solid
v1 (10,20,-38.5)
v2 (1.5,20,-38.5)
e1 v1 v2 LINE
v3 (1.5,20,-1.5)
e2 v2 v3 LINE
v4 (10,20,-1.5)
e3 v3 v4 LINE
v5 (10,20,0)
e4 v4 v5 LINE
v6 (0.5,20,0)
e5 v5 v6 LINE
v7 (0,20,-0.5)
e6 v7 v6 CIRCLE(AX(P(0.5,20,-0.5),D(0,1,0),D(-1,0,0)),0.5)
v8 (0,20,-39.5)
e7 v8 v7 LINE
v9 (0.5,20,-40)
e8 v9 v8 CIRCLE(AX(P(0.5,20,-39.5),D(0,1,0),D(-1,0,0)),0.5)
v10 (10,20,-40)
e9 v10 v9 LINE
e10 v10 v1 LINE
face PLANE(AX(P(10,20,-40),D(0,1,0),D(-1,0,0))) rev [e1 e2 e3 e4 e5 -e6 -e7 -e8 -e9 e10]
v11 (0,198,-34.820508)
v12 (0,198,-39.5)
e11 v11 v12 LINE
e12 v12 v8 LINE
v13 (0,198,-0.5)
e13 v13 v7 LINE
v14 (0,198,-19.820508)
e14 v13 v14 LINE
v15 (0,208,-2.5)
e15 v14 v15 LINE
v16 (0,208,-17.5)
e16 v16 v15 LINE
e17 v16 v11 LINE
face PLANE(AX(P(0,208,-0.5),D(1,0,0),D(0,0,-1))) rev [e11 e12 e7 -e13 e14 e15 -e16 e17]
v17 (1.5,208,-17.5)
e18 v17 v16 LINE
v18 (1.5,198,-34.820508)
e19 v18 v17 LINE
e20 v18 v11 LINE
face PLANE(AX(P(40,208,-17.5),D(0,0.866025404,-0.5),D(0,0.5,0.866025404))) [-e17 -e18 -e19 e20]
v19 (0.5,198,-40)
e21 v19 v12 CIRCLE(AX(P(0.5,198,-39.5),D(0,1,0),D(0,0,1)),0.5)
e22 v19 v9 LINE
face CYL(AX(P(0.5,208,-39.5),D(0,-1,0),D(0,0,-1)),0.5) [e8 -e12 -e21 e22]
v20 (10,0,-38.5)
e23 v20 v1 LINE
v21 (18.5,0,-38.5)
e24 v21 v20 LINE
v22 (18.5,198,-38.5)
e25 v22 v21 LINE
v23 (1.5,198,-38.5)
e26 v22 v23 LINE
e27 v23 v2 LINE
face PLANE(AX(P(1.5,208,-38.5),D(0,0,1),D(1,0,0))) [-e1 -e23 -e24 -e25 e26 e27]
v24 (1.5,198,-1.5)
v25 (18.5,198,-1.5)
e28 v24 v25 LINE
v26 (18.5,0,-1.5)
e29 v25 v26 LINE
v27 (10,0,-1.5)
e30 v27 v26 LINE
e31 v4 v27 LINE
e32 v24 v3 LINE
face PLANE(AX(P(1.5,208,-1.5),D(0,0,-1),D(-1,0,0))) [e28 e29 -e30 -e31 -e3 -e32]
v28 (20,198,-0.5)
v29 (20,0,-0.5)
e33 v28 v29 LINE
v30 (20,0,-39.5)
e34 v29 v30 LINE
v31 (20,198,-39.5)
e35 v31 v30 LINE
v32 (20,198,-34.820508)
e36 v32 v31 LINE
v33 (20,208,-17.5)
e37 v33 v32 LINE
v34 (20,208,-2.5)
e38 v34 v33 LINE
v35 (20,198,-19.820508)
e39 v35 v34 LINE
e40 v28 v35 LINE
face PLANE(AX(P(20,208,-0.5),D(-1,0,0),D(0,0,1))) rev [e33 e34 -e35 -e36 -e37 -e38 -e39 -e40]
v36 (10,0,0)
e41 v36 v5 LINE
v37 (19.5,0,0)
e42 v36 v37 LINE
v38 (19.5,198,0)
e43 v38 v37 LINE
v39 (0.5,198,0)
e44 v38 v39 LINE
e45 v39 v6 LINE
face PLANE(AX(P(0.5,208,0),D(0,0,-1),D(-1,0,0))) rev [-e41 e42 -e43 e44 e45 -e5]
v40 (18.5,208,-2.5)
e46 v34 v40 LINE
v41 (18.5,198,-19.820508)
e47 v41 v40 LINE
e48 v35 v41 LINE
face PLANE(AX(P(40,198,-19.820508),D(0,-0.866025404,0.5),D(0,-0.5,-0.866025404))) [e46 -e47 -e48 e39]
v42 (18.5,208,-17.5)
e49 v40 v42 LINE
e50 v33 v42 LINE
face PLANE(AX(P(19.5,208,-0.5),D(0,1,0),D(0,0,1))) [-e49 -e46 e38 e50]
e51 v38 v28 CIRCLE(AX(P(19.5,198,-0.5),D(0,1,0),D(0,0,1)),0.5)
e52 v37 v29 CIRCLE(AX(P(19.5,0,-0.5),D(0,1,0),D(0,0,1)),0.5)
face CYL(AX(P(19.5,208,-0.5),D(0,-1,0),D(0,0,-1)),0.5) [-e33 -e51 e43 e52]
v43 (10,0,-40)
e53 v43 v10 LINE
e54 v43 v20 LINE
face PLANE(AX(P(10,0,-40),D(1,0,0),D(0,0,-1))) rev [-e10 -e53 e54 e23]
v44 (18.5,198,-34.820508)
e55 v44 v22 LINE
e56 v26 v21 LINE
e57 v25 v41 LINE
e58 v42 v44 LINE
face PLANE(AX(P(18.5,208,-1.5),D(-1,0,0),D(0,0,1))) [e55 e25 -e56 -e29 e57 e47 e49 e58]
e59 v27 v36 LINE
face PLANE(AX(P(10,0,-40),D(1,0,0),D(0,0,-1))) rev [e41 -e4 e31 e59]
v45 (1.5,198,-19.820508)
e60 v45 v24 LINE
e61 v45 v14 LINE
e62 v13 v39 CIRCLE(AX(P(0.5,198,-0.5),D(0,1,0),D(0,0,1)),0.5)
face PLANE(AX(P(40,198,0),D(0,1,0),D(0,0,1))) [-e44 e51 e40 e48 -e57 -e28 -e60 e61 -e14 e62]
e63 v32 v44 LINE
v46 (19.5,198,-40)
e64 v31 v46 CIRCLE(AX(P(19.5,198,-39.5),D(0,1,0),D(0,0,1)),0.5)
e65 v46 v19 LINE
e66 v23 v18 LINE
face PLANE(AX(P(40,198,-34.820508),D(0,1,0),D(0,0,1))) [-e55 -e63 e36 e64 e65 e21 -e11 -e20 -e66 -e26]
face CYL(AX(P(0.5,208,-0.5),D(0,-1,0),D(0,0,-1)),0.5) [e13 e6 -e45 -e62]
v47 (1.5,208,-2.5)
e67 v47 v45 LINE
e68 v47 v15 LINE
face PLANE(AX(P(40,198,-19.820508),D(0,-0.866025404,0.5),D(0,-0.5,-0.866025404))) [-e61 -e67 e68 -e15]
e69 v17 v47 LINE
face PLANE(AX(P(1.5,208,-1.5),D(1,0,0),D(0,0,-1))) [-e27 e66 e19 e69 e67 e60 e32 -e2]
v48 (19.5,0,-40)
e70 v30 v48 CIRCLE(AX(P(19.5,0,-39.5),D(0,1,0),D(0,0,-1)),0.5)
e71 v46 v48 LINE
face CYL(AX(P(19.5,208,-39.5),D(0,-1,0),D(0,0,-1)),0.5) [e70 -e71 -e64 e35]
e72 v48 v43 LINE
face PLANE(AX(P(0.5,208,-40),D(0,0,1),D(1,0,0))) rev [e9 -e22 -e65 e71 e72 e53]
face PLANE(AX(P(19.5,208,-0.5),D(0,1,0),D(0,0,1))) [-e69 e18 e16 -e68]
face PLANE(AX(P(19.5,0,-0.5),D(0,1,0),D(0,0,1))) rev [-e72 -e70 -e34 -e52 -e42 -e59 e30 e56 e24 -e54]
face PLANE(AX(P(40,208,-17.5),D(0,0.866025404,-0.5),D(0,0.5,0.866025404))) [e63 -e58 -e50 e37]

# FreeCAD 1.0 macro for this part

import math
import FreeCAD as App
import Part
import Sketcher
from FreeCAD import Vector
Q = App.Units.Quantity


def add_polygon(sketch, points):
    """Adds a closed chain of lines whose ends are joined by coincident constraints."""
    first, n = sketch.GeometryCount, len(points)
    for a, b in zip(points, points[1:] + points[:1]):
        sketch.addGeometry(Part.LineSegment(App.Vector(*a, 0), App.Vector(*b, 0)), False)
    for i in range(n):
        sketch.addConstraint(Sketcher.Constraint("Coincident", first + i, 2, first + (i + 1) % n, 1))

doc = App.newDocument("Part")
body = doc.addObject("PartDesign::Body", "Body")

sketch1 = body.newObject("Sketcher::SketchObject", "Sketch")
sketch1.AttachmentSupport = (doc.getObject("XZ_Plane"), [""])
sketch1.MapMode = "FlatFace"
sketch1.addGeometry(Part.LineSegment(Vector(0.5, 0, 0), Vector(19.5, 0, 0)), False)
sketch1.addGeometry(Part.ArcOfCircle(Part.Circle(Vector(19.5, -0.5, 0), Vector(0, 0, 1), 0.5), math.radians(0), math.radians(90)), False)
sketch1.addGeometry(Part.LineSegment(Vector(20, -0.5, 0), Vector(20, -39.5, 0)), False)
sketch1.addGeometry(Part.ArcOfCircle(Part.Circle(Vector(19.5, -39.5, 0), Vector(0, 0, 1), 0.5), math.radians(-90), math.radians(0)), False)
sketch1.addGeometry(Part.LineSegment(Vector(19.5, -40, 0), Vector(0.5, -40, 0)), False)
sketch1.addGeometry(Part.ArcOfCircle(Part.Circle(Vector(0.5, -39.5, 0), Vector(0, 0, 1), 0.5), math.radians(180), math.radians(270)), False)
sketch1.addGeometry(Part.LineSegment(Vector(0, -39.5, 0), Vector(0, -0.5, 0)), False)
sketch1.addGeometry(Part.ArcOfCircle(Part.Circle(Vector(0.5, -0.5, 0), Vector(0, 0, 1), 0.5), math.radians(90), math.radians(180)), False)
add_polygon(sketch1, [(18.5, -1.5), (1.5, -1.5), (1.5, -38.5), (18.5, -38.5)])
sketch1.addConstraint([
    Sketcher.Constraint("Tangent", 0, 2, 1, 2),
    Sketcher.Constraint("Tangent", 1, 1, 2, 1),
    Sketcher.Constraint("Tangent", 2, 2, 3, 2),
    Sketcher.Constraint("Tangent", 3, 1, 4, 1),
    Sketcher.Constraint("Tangent", 4, 2, 5, 2),
    Sketcher.Constraint("Tangent", 5, 1, 6, 1),
    Sketcher.Constraint("Tangent", 6, 2, 7, 2),
    Sketcher.Constraint("Tangent", 7, 1, 0, 1),
    Sketcher.Constraint("Horizontal", 0),
    Sketcher.Constraint("Vertical", 2),
    Sketcher.Constraint("Horizontal", 4),
    Sketcher.Constraint("Vertical", 6),
    Sketcher.Constraint("Horizontal", 8),
    Sketcher.Constraint("Vertical", 9),
    Sketcher.Constraint("Horizontal", 10),
    Sketcher.Constraint("Vertical", 11),
    Sketcher.Constraint("Equal", 1, 3),
    Sketcher.Constraint("Equal", 3, 5),
    Sketcher.Constraint("Equal", 5, 7),
    Sketcher.Constraint("PointOnObject", 0, 2, -1),
    Sketcher.Constraint("PointOnObject", 5, 1, -2),
    Sketcher.Constraint("Radius", 1, 0.5),
    Sketcher.Constraint("DistanceX", 0, 1, 0, 2, 19.0),
    Sketcher.Constraint("DistanceX", 8, 2, 8, 1, 17.0),
    Sketcher.Constraint("DistanceY", 2, 2, 2, 1, 39.0),
    Sketcher.Constraint("DistanceY", 9, 2, 9, 1, 37.0),
    Sketcher.Constraint("DistanceX", 7, 3, 8, 2, 1.0),
    Sketcher.Constraint("DistanceY", 8, 2, 7, 3, 1.0),
])
pad1 = body.newObject("PartDesign::Pad", "Pad")
pad1.Profile = sketch1
pad1.Length = 208
pad1.Reversed = True

sketch2 = body.newObject("Sketcher::SketchObject", "Sketch001")
sketch2.AttachmentSupport = (doc.getObject("XY_Plane"), [""])
sketch2.MapMode = "FlatFace"
add_polygon(sketch2, [(0, 20), (0, 0), (10, 0), (10, 20)])
sketch2.addConstraint([
    Sketcher.Constraint("Vertical", 0),
    Sketcher.Constraint("Horizontal", 1),
    Sketcher.Constraint("Vertical", 2),
    Sketcher.Constraint("Horizontal", 3),
    Sketcher.Constraint("Coincident", 0, 2, -1, 1),
    Sketcher.Constraint("DistanceX", 1, 1, 1, 2, 10.0),
    Sketcher.Constraint("DistanceY", 0, 2, 0, 1, 20.0),
])
pocket1 = body.newObject("PartDesign::Pocket", "Pocket")
pocket1.Profile = sketch2
pocket1.Length = 40

sketch3 = body.newObject("Sketcher::SketchObject", "Sketch002")
sketch3.AttachmentSupport = (doc.getObject("YZ_Plane"), [""])
sketch3.MapMode = "FlatFace"
add_polygon(sketch3, [(208, 0), (198, 0), (198, -19.820508), (208, -2.5)])
add_polygon(sketch3, [(208, -17.5), (198, -34.820508), (198, -40), (208, -40)])
sketch3.addConstraint([
    Sketcher.Constraint("Horizontal", 0),
    Sketcher.Constraint("Vertical", 1),
    Sketcher.Constraint("Vertical", 3),
    Sketcher.Constraint("Vertical", 5),
    Sketcher.Constraint("Horizontal", 6),
    Sketcher.Constraint("Vertical", 7),
    Sketcher.Constraint("PointOnObject", 0, 2, -1),
    Sketcher.Constraint("Parallel", 2, 4),
    Sketcher.Constraint("Vertical", 1, 2, 4, 2),
    Sketcher.Constraint("Vertical", 3, 2, 6, 2),
    Sketcher.Constraint("DistanceX", 0, 2, 0, 1, 10.0),
    Sketcher.Constraint("Angle", 2, Q("60 deg")),
    Sketcher.Constraint("DistanceY", 3, 1, 3, 2, 2.5),
    Sketcher.Constraint("DistanceY", 7, 1, 7, 2, 22.5),
    Sketcher.Constraint("DistanceX", -1, 1, 0, 2, 198.0),
    Sketcher.Constraint("DistanceY", 5, 2, -1, 1, 40.0),
])
pocket2 = body.newObject("PartDesign::Pocket", "Pocket001")
pocket2.Profile = sketch3
pocket2.Length = 40
pocket2.Reversed = True

doc.recompute()
